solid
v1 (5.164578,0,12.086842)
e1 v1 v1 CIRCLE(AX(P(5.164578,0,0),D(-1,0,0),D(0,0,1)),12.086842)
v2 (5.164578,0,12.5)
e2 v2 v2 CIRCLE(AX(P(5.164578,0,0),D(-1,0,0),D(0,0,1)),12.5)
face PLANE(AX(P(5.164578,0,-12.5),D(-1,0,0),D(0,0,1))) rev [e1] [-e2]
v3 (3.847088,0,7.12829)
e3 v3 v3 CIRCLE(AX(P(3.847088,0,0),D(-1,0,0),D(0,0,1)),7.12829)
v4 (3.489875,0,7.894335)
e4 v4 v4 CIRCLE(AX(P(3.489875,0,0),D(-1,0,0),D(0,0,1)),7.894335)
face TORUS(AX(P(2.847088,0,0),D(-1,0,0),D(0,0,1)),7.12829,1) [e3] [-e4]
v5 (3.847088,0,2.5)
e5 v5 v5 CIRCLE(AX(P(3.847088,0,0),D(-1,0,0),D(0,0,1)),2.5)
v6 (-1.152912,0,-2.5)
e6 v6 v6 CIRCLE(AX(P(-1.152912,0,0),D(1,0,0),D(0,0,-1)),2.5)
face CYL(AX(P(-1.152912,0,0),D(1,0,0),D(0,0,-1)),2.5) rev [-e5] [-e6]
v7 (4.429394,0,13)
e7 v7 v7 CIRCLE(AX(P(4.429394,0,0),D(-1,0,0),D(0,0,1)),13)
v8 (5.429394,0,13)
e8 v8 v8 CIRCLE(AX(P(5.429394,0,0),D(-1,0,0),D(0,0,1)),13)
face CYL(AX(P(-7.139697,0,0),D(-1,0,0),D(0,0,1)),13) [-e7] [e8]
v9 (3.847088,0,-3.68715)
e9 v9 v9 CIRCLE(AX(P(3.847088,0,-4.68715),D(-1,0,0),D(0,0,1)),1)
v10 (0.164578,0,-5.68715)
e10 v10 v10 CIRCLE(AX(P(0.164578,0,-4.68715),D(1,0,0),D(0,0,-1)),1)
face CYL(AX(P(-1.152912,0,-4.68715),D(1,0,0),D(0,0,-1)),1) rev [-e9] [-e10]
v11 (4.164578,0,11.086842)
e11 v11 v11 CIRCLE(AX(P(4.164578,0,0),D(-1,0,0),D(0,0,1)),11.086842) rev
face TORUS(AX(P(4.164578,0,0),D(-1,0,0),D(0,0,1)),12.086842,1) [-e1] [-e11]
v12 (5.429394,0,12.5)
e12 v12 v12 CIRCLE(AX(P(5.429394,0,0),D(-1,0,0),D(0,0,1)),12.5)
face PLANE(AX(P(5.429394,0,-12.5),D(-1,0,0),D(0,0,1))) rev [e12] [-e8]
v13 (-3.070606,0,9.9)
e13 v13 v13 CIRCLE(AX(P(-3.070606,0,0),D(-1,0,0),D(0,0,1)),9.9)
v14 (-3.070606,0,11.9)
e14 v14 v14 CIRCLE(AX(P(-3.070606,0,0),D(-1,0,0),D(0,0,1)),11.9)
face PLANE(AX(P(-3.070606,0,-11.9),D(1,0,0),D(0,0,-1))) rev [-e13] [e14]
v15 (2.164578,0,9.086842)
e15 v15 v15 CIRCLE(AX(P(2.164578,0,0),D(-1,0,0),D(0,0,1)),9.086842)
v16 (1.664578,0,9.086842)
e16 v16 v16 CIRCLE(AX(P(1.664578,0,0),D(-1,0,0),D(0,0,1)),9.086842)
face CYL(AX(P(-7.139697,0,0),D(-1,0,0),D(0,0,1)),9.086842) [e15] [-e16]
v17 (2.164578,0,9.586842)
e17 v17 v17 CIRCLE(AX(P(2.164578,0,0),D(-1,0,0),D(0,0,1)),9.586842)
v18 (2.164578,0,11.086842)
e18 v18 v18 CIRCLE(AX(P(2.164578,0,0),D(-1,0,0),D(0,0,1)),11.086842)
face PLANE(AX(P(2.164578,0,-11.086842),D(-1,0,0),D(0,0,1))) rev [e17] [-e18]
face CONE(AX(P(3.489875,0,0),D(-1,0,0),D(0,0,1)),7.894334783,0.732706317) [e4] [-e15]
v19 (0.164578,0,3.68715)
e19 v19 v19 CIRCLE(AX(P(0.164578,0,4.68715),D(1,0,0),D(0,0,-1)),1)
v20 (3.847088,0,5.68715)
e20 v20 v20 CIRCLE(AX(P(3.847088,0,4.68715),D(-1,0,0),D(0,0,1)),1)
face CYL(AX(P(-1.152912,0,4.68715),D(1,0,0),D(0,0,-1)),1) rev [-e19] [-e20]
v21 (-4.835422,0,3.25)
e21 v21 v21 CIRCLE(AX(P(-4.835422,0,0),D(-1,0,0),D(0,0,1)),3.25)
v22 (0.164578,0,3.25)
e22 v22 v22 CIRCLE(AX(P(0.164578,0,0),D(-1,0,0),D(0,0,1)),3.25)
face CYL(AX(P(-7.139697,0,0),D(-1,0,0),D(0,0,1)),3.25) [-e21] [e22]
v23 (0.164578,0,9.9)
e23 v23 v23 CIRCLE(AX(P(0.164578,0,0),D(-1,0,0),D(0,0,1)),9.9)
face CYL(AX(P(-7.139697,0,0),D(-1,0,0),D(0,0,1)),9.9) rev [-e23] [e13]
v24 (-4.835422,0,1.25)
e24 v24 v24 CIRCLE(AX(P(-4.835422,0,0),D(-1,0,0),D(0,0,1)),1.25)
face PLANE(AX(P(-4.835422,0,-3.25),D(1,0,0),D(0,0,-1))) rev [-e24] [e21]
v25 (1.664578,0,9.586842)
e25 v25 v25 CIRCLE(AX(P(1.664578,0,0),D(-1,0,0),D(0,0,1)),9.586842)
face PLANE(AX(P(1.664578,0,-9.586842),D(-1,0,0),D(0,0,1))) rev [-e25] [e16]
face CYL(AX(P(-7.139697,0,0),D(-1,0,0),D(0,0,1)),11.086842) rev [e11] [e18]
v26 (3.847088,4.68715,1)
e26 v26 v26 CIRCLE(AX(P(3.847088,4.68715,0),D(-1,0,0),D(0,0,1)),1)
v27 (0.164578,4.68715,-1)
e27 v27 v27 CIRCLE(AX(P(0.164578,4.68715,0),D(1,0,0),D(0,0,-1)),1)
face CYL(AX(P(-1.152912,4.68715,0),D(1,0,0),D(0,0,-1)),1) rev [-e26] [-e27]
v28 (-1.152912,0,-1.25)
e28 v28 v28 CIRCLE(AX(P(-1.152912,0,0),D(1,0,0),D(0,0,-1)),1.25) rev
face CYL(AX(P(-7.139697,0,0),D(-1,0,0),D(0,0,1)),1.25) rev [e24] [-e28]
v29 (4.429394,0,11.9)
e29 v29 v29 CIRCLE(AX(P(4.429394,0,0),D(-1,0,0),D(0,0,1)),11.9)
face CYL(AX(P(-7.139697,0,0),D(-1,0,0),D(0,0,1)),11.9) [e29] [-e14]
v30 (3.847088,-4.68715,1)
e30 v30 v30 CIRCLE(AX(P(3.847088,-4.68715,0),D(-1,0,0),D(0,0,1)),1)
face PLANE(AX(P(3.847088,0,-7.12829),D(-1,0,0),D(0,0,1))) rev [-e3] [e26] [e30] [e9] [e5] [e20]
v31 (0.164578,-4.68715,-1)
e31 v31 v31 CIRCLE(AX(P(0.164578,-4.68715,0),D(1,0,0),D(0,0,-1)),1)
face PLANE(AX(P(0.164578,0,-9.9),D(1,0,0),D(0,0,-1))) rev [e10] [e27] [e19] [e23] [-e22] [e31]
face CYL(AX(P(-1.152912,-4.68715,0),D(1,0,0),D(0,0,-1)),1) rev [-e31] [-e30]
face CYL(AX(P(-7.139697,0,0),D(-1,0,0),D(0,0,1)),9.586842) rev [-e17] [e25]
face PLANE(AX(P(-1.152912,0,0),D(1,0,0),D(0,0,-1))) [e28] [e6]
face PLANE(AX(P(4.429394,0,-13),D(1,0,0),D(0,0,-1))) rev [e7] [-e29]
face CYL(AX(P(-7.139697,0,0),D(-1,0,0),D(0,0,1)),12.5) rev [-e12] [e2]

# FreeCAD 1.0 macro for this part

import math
import FreeCAD as App
import Part
import Sketcher
Q = App.Units.Quantity


def edges_at(feature, points):
    """Names of the edges that pass closest to the given points."""
    edges = feature.Shape.Edges
    near = lambda p: min(range(len(edges)), key=lambda i: edges[i].distToShape(Part.Vertex(*p))[0])
    return sorted({f"Edge{near(p) + 1}" for p in points})

doc = App.newDocument("Part")
body = doc.addObject("PartDesign::Body", "Body")

# Sketch on XZ plane
sketch1 = body.newObject("Sketcher::SketchObject", "Sketch")
sketch1.AttachmentSupport = (doc.getObject("XZ_Plane"), [""])
sketch1.MapMode = "FlatFace"
sketch1.addGeometry(Part.LineSegment(App.Vector(5.43, -13, 0), App.Vector(4.43, -13, 0)), False)
sketch1.addGeometry(Part.LineSegment(App.Vector(4.43, -13, 0), App.Vector(4.43, -11.9, 0)), False)
sketch1.addGeometry(Part.LineSegment(App.Vector(4.43, -11.9, 0), App.Vector(-3.07, -11.9, 0)), False)
sketch1.addGeometry(Part.LineSegment(App.Vector(-3.07, -11.9, 0), App.Vector(-3.07, -9.9, 0)), False)
sketch1.addGeometry(Part.LineSegment(App.Vector(-3.07, -9.9, 0), App.Vector(0.16, -9.9, 0)), False)
sketch1.addGeometry(Part.LineSegment(App.Vector(0.16, -9.9, 0), App.Vector(0.16, -3.25, 0)), False)
sketch1.addGeometry(Part.LineSegment(App.Vector(0.16, -3.25, 0), App.Vector(-4.84, -3.25, 0)), False)
sketch1.addGeometry(Part.LineSegment(App.Vector(-4.84, -3.25, 0), App.Vector(-4.84, -1.25, 0)), False)
sketch1.addGeometry(Part.LineSegment(App.Vector(-4.84, -1.25, 0), App.Vector(1.85, -1.25, 0)), False)
sketch1.addGeometry(Part.LineSegment(App.Vector(1.85, -1.25, 0), App.Vector(1.85, 0, 0)), False)
sketch1.addGeometry(Part.LineSegment(App.Vector(1.85, 0, 0), App.Vector(3.85, 0, 0)), False)
sketch1.addGeometry(Part.LineSegment(App.Vector(3.85, 0, 0), App.Vector(3.85, -7.13, 0)), False)
sketch1.addGeometry(Part.ArcOfCircle(Part.Circle(App.Vector(2.85, -7.13, 0), App.Vector(0, 0, 1), 1), math.radians(-50), math.radians(0)), False)
sketch1.addGeometry(Part.LineSegment(App.Vector(3.49, -7.89, 0), App.Vector(2.16, -9.09, 0)), False)
sketch1.addGeometry(Part.LineSegment(App.Vector(2.16, -9.09, 0), App.Vector(1.66, -9.09, 0)), False)
sketch1.addGeometry(Part.LineSegment(App.Vector(1.66, -9.09, 0), App.Vector(1.66, -9.59, 0)), False)
sketch1.addGeometry(Part.LineSegment(App.Vector(1.66, -9.59, 0), App.Vector(2.16, -9.59, 0)), False)
sketch1.addGeometry(Part.LineSegment(App.Vector(2.16, -9.59, 0), App.Vector(2.16, -11.09, 0)), False)
sketch1.addGeometry(Part.LineSegment(App.Vector(2.16, -11.09, 0), App.Vector(5.16, -11.09, 0)), False)
sketch1.addGeometry(Part.LineSegment(App.Vector(5.16, -11.09, 0), App.Vector(5.16, -12.5, 0)), False)
sketch1.addGeometry(Part.LineSegment(App.Vector(5.16, -12.5, 0), App.Vector(5.43, -12.5, 0)), False)
sketch1.addGeometry(Part.LineSegment(App.Vector(5.43, -12.5, 0), App.Vector(5.43, -13, 0)), False)
sketch1.addConstraint(Sketcher.Constraint("Coincident", 0, 2, 1, 1))
sketch1.addConstraint(Sketcher.Constraint("Coincident", 1, 2, 2, 1))
sketch1.addConstraint(Sketcher.Constraint("Coincident", 2, 2, 3, 1))
sketch1.addConstraint(Sketcher.Constraint("Coincident", 3, 2, 4, 1))
sketch1.addConstraint(Sketcher.Constraint("Coincident", 4, 2, 5, 1))
sketch1.addConstraint(Sketcher.Constraint("Coincident", 5, 2, 6, 1))
sketch1.addConstraint(Sketcher.Constraint("Coincident", 6, 2, 7, 1))
sketch1.addConstraint(Sketcher.Constraint("Coincident", 7, 2, 8, 1))
sketch1.addConstraint(Sketcher.Constraint("Coincident", 8, 2, 9, 1))
sketch1.addConstraint(Sketcher.Constraint("Coincident", 9, 2, 10, 1))
sketch1.addConstraint(Sketcher.Constraint("Coincident", 10, 2, 11, 1))
sketch1.addConstraint(Sketcher.Constraint("Tangent", 11, 2, 12, 2))
sketch1.addConstraint(Sketcher.Constraint("Coincident", 12, 1, 13, 1))
sketch1.addConstraint(Sketcher.Constraint("Coincident", 13, 2, 14, 1))
sketch1.addConstraint(Sketcher.Constraint("Coincident", 14, 2, 15, 1))
sketch1.addConstraint(Sketcher.Constraint("Coincident", 15, 2, 16, 1))
sketch1.addConstraint(Sketcher.Constraint("Coincident", 16, 2, 17, 1))
sketch1.addConstraint(Sketcher.Constraint("Coincident", 17, 2, 18, 1))
sketch1.addConstraint(Sketcher.Constraint("Coincident", 18, 2, 19, 1))
sketch1.addConstraint(Sketcher.Constraint("Coincident", 19, 2, 20, 1))
sketch1.addConstraint(Sketcher.Constraint("Coincident", 20, 2, 21, 1))
sketch1.addConstraint(Sketcher.Constraint("Coincident", 21, 2, 0, 1))
sketch1.addConstraint(Sketcher.Constraint("Horizontal", 0))
sketch1.addConstraint(Sketcher.Constraint("Vertical", 1))
sketch1.addConstraint(Sketcher.Constraint("Horizontal", 2))
sketch1.addConstraint(Sketcher.Constraint("Vertical", 3))
sketch1.addConstraint(Sketcher.Constraint("Horizontal", 4))
sketch1.addConstraint(Sketcher.Constraint("Vertical", 5))
sketch1.addConstraint(Sketcher.Constraint("Horizontal", 6))
sketch1.addConstraint(Sketcher.Constraint("Vertical", 7))
sketch1.addConstraint(Sketcher.Constraint("Horizontal", 8))
sketch1.addConstraint(Sketcher.Constraint("Vertical", 9))
sketch1.addConstraint(Sketcher.Constraint("Horizontal", 10))
sketch1.addConstraint(Sketcher.Constraint("Vertical", 11))
sketch1.addConstraint(Sketcher.Constraint("Horizontal", 14))
sketch1.addConstraint(Sketcher.Constraint("Vertical", 15))
sketch1.addConstraint(Sketcher.Constraint("Horizontal", 16))
sketch1.addConstraint(Sketcher.Constraint("Vertical", 17))
sketch1.addConstraint(Sketcher.Constraint("Horizontal", 18))
sketch1.addConstraint(Sketcher.Constraint("Vertical", 19))
sketch1.addConstraint(Sketcher.Constraint("Horizontal", 20))
sketch1.addConstraint(Sketcher.Constraint("Vertical", 21))
sketch1.addConstraint(Sketcher.Constraint("PointOnObject", 9, 2, -1))
sketch1.addConstraint(Sketcher.Constraint("Vertical", 13, 2, 16, 2))
sketch1.addConstraint(Sketcher.Constraint("Equal", 10, 3))
sketch1.addConstraint(Sketcher.Constraint("Equal", 3, 7))
sketch1.addConstraint(Sketcher.Constraint("Equal", 16, 15))
sketch1.addConstraint(Sketcher.Constraint("Equal", 15, 21))
sketch1.addConstraint(Sketcher.Constraint("Radius", 12, Q("1 mm")))
sketch1.addConstraint(Sketcher.Constraint("DistanceX", 0, 2, 0, 1, Q("1 mm")))
sketch1.addConstraint(Sketcher.Constraint("DistanceX", 6, 2, 6, 1, Q("5 mm")))
sketch1.addConstraint(Sketcher.Constraint("DistanceX", 10, 1, 10, 2, Q("2 mm")))
sketch1.addConstraint(Sketcher.Constraint("DistanceX", 18, 1, 18, 2, Q("3 mm")))
sketch1.addConstraint(Sketcher.Constraint("DistanceX", 2, 2, 2, 1, Q("7.5 mm")))
sketch1.addConstraint(Sketcher.Constraint("DistanceX", 14, 2, 14, 1, Q("0.5 mm")))
sketch1.addConstraint(Sketcher.Constraint("DistanceY", 1, 1, 1, 2, Q("1.1 mm")))
sketch1.addConstraint(Sketcher.Constraint("DistanceY", 17, 2, 17, 1, Q("1.5 mm")))
sketch1.addConstraint(Sketcher.Constraint("DistanceY", 0, 2, -1, 1, Q("13 mm")))
sketch1.addConstraint(Sketcher.Constraint("DistanceX", 4, 2, 13, 2, Q("2 mm")))
sketch1.addConstraint(Sketcher.Constraint("DistanceY", 5, 1, 5, 2, Q("6.65 mm")))
sketch1.addConstraint(Sketcher.Constraint("DistanceX", 8, 1, 8, 2, Q("6.68251 mm")))
sketch1.addConstraint(Sketcher.Constraint("DistanceY", 11, 2, 11, 1, Q("7.12829 mm")))
sketch1.addConstraint(Sketcher.Constraint("DistanceY", 19, 2, 19, 1, Q("1.413158 mm")))
sketch1.addConstraint(Sketcher.Constraint("Distance", 13, Q("1.782831 mm")))
sketch1.addConstraint(Sketcher.Constraint("DistanceX", 4, 1, 4, 2, Q("3.235183 mm")))
sketch1.addConstraint(Sketcher.Constraint("DistanceX", -1, 1, 12, 3, Q("2.847088 mm")))
revolution = body.newObject("PartDesign::Revolution", "Revolution")
revolution.Profile = sketch1
revolution.ReferenceAxis = (sketch1, ["H_Axis"])
revolution.Angle = 360
doc.recompute()

fillet = body.newObject("PartDesign::Fillet", "Fillet")
fillet.Base = (revolution, edges_at(revolution, [(5.165, 0, 11.087)]))
fillet.Radius = 1

# Sketch on YZ plane
sketch2 = body.newObject("Sketcher::SketchObject", "Sketch001")
sketch2.AttachmentSupport = (doc.getObject("YZ_Plane"), [""])
sketch2.MapMode = "FlatFace"
sketch2.AttachmentOffset = App.Placement(App.Vector(0, 0, 3.847088), App.Rotation())
sketch2.addGeometry(Part.Circle(App.Vector(0, 0, 0), App.Vector(0, 0, 1), 2.5), False)
sketch2.addGeometry(Part.Circle(App.Vector(4.7, 0, 0), App.Vector(0, 0, 1), 1), False)
sketch2.addGeometry(Part.Circle(App.Vector(0, -4.7, 0), App.Vector(0, 0, 1), 1), False)
sketch2.addGeometry(Part.Circle(App.Vector(-4.7, 0, 0), App.Vector(0, 0, 1), 1), False)
sketch2.addGeometry(Part.Circle(App.Vector(0, 4.7, 0), App.Vector(0, 0, 1), 1), False)
sketch2.addConstraint(Sketcher.Constraint("Coincident", 0, 3, -1, 1))
sketch2.addConstraint(Sketcher.Constraint("Equal", 1, 2))
sketch2.addConstraint(Sketcher.Constraint("Equal", 2, 3))
sketch2.addConstraint(Sketcher.Constraint("Equal", 3, 4))
sketch2.addConstraint(Sketcher.Constraint("Symmetric", 1, 3, 3, 3, -1, 1))
sketch2.addConstraint(Sketcher.Constraint("Symmetric", 2, 3, 4, 3, -1, 1))
sketch2.addConstraint(Sketcher.Constraint("PointOnObject", 1, 3, -1))
sketch2.addConstraint(Sketcher.Constraint("PointOnObject", 2, 3, -2))
sketch2.addConstraint(Sketcher.Constraint("Diameter", 0, Q("5 mm")))
sketch2.addConstraint(Sketcher.Constraint("Diameter", 1, Q("2 mm")))
sketch2.addConstraint(Sketcher.Constraint("DistanceX", 3, 3, 1, 3, Q("9.3743 mm")))
sketch2.addConstraint(Sketcher.Constraint("DistanceY", 2, 3, 4, 3, Q("9.3743 mm")))
pocket1 = body.newObject("PartDesign::Pocket", "Pocket")
pocket1.Profile = sketch2
pocket1.Length = 10
pocket1.Midplane = True

doc.recompute()
